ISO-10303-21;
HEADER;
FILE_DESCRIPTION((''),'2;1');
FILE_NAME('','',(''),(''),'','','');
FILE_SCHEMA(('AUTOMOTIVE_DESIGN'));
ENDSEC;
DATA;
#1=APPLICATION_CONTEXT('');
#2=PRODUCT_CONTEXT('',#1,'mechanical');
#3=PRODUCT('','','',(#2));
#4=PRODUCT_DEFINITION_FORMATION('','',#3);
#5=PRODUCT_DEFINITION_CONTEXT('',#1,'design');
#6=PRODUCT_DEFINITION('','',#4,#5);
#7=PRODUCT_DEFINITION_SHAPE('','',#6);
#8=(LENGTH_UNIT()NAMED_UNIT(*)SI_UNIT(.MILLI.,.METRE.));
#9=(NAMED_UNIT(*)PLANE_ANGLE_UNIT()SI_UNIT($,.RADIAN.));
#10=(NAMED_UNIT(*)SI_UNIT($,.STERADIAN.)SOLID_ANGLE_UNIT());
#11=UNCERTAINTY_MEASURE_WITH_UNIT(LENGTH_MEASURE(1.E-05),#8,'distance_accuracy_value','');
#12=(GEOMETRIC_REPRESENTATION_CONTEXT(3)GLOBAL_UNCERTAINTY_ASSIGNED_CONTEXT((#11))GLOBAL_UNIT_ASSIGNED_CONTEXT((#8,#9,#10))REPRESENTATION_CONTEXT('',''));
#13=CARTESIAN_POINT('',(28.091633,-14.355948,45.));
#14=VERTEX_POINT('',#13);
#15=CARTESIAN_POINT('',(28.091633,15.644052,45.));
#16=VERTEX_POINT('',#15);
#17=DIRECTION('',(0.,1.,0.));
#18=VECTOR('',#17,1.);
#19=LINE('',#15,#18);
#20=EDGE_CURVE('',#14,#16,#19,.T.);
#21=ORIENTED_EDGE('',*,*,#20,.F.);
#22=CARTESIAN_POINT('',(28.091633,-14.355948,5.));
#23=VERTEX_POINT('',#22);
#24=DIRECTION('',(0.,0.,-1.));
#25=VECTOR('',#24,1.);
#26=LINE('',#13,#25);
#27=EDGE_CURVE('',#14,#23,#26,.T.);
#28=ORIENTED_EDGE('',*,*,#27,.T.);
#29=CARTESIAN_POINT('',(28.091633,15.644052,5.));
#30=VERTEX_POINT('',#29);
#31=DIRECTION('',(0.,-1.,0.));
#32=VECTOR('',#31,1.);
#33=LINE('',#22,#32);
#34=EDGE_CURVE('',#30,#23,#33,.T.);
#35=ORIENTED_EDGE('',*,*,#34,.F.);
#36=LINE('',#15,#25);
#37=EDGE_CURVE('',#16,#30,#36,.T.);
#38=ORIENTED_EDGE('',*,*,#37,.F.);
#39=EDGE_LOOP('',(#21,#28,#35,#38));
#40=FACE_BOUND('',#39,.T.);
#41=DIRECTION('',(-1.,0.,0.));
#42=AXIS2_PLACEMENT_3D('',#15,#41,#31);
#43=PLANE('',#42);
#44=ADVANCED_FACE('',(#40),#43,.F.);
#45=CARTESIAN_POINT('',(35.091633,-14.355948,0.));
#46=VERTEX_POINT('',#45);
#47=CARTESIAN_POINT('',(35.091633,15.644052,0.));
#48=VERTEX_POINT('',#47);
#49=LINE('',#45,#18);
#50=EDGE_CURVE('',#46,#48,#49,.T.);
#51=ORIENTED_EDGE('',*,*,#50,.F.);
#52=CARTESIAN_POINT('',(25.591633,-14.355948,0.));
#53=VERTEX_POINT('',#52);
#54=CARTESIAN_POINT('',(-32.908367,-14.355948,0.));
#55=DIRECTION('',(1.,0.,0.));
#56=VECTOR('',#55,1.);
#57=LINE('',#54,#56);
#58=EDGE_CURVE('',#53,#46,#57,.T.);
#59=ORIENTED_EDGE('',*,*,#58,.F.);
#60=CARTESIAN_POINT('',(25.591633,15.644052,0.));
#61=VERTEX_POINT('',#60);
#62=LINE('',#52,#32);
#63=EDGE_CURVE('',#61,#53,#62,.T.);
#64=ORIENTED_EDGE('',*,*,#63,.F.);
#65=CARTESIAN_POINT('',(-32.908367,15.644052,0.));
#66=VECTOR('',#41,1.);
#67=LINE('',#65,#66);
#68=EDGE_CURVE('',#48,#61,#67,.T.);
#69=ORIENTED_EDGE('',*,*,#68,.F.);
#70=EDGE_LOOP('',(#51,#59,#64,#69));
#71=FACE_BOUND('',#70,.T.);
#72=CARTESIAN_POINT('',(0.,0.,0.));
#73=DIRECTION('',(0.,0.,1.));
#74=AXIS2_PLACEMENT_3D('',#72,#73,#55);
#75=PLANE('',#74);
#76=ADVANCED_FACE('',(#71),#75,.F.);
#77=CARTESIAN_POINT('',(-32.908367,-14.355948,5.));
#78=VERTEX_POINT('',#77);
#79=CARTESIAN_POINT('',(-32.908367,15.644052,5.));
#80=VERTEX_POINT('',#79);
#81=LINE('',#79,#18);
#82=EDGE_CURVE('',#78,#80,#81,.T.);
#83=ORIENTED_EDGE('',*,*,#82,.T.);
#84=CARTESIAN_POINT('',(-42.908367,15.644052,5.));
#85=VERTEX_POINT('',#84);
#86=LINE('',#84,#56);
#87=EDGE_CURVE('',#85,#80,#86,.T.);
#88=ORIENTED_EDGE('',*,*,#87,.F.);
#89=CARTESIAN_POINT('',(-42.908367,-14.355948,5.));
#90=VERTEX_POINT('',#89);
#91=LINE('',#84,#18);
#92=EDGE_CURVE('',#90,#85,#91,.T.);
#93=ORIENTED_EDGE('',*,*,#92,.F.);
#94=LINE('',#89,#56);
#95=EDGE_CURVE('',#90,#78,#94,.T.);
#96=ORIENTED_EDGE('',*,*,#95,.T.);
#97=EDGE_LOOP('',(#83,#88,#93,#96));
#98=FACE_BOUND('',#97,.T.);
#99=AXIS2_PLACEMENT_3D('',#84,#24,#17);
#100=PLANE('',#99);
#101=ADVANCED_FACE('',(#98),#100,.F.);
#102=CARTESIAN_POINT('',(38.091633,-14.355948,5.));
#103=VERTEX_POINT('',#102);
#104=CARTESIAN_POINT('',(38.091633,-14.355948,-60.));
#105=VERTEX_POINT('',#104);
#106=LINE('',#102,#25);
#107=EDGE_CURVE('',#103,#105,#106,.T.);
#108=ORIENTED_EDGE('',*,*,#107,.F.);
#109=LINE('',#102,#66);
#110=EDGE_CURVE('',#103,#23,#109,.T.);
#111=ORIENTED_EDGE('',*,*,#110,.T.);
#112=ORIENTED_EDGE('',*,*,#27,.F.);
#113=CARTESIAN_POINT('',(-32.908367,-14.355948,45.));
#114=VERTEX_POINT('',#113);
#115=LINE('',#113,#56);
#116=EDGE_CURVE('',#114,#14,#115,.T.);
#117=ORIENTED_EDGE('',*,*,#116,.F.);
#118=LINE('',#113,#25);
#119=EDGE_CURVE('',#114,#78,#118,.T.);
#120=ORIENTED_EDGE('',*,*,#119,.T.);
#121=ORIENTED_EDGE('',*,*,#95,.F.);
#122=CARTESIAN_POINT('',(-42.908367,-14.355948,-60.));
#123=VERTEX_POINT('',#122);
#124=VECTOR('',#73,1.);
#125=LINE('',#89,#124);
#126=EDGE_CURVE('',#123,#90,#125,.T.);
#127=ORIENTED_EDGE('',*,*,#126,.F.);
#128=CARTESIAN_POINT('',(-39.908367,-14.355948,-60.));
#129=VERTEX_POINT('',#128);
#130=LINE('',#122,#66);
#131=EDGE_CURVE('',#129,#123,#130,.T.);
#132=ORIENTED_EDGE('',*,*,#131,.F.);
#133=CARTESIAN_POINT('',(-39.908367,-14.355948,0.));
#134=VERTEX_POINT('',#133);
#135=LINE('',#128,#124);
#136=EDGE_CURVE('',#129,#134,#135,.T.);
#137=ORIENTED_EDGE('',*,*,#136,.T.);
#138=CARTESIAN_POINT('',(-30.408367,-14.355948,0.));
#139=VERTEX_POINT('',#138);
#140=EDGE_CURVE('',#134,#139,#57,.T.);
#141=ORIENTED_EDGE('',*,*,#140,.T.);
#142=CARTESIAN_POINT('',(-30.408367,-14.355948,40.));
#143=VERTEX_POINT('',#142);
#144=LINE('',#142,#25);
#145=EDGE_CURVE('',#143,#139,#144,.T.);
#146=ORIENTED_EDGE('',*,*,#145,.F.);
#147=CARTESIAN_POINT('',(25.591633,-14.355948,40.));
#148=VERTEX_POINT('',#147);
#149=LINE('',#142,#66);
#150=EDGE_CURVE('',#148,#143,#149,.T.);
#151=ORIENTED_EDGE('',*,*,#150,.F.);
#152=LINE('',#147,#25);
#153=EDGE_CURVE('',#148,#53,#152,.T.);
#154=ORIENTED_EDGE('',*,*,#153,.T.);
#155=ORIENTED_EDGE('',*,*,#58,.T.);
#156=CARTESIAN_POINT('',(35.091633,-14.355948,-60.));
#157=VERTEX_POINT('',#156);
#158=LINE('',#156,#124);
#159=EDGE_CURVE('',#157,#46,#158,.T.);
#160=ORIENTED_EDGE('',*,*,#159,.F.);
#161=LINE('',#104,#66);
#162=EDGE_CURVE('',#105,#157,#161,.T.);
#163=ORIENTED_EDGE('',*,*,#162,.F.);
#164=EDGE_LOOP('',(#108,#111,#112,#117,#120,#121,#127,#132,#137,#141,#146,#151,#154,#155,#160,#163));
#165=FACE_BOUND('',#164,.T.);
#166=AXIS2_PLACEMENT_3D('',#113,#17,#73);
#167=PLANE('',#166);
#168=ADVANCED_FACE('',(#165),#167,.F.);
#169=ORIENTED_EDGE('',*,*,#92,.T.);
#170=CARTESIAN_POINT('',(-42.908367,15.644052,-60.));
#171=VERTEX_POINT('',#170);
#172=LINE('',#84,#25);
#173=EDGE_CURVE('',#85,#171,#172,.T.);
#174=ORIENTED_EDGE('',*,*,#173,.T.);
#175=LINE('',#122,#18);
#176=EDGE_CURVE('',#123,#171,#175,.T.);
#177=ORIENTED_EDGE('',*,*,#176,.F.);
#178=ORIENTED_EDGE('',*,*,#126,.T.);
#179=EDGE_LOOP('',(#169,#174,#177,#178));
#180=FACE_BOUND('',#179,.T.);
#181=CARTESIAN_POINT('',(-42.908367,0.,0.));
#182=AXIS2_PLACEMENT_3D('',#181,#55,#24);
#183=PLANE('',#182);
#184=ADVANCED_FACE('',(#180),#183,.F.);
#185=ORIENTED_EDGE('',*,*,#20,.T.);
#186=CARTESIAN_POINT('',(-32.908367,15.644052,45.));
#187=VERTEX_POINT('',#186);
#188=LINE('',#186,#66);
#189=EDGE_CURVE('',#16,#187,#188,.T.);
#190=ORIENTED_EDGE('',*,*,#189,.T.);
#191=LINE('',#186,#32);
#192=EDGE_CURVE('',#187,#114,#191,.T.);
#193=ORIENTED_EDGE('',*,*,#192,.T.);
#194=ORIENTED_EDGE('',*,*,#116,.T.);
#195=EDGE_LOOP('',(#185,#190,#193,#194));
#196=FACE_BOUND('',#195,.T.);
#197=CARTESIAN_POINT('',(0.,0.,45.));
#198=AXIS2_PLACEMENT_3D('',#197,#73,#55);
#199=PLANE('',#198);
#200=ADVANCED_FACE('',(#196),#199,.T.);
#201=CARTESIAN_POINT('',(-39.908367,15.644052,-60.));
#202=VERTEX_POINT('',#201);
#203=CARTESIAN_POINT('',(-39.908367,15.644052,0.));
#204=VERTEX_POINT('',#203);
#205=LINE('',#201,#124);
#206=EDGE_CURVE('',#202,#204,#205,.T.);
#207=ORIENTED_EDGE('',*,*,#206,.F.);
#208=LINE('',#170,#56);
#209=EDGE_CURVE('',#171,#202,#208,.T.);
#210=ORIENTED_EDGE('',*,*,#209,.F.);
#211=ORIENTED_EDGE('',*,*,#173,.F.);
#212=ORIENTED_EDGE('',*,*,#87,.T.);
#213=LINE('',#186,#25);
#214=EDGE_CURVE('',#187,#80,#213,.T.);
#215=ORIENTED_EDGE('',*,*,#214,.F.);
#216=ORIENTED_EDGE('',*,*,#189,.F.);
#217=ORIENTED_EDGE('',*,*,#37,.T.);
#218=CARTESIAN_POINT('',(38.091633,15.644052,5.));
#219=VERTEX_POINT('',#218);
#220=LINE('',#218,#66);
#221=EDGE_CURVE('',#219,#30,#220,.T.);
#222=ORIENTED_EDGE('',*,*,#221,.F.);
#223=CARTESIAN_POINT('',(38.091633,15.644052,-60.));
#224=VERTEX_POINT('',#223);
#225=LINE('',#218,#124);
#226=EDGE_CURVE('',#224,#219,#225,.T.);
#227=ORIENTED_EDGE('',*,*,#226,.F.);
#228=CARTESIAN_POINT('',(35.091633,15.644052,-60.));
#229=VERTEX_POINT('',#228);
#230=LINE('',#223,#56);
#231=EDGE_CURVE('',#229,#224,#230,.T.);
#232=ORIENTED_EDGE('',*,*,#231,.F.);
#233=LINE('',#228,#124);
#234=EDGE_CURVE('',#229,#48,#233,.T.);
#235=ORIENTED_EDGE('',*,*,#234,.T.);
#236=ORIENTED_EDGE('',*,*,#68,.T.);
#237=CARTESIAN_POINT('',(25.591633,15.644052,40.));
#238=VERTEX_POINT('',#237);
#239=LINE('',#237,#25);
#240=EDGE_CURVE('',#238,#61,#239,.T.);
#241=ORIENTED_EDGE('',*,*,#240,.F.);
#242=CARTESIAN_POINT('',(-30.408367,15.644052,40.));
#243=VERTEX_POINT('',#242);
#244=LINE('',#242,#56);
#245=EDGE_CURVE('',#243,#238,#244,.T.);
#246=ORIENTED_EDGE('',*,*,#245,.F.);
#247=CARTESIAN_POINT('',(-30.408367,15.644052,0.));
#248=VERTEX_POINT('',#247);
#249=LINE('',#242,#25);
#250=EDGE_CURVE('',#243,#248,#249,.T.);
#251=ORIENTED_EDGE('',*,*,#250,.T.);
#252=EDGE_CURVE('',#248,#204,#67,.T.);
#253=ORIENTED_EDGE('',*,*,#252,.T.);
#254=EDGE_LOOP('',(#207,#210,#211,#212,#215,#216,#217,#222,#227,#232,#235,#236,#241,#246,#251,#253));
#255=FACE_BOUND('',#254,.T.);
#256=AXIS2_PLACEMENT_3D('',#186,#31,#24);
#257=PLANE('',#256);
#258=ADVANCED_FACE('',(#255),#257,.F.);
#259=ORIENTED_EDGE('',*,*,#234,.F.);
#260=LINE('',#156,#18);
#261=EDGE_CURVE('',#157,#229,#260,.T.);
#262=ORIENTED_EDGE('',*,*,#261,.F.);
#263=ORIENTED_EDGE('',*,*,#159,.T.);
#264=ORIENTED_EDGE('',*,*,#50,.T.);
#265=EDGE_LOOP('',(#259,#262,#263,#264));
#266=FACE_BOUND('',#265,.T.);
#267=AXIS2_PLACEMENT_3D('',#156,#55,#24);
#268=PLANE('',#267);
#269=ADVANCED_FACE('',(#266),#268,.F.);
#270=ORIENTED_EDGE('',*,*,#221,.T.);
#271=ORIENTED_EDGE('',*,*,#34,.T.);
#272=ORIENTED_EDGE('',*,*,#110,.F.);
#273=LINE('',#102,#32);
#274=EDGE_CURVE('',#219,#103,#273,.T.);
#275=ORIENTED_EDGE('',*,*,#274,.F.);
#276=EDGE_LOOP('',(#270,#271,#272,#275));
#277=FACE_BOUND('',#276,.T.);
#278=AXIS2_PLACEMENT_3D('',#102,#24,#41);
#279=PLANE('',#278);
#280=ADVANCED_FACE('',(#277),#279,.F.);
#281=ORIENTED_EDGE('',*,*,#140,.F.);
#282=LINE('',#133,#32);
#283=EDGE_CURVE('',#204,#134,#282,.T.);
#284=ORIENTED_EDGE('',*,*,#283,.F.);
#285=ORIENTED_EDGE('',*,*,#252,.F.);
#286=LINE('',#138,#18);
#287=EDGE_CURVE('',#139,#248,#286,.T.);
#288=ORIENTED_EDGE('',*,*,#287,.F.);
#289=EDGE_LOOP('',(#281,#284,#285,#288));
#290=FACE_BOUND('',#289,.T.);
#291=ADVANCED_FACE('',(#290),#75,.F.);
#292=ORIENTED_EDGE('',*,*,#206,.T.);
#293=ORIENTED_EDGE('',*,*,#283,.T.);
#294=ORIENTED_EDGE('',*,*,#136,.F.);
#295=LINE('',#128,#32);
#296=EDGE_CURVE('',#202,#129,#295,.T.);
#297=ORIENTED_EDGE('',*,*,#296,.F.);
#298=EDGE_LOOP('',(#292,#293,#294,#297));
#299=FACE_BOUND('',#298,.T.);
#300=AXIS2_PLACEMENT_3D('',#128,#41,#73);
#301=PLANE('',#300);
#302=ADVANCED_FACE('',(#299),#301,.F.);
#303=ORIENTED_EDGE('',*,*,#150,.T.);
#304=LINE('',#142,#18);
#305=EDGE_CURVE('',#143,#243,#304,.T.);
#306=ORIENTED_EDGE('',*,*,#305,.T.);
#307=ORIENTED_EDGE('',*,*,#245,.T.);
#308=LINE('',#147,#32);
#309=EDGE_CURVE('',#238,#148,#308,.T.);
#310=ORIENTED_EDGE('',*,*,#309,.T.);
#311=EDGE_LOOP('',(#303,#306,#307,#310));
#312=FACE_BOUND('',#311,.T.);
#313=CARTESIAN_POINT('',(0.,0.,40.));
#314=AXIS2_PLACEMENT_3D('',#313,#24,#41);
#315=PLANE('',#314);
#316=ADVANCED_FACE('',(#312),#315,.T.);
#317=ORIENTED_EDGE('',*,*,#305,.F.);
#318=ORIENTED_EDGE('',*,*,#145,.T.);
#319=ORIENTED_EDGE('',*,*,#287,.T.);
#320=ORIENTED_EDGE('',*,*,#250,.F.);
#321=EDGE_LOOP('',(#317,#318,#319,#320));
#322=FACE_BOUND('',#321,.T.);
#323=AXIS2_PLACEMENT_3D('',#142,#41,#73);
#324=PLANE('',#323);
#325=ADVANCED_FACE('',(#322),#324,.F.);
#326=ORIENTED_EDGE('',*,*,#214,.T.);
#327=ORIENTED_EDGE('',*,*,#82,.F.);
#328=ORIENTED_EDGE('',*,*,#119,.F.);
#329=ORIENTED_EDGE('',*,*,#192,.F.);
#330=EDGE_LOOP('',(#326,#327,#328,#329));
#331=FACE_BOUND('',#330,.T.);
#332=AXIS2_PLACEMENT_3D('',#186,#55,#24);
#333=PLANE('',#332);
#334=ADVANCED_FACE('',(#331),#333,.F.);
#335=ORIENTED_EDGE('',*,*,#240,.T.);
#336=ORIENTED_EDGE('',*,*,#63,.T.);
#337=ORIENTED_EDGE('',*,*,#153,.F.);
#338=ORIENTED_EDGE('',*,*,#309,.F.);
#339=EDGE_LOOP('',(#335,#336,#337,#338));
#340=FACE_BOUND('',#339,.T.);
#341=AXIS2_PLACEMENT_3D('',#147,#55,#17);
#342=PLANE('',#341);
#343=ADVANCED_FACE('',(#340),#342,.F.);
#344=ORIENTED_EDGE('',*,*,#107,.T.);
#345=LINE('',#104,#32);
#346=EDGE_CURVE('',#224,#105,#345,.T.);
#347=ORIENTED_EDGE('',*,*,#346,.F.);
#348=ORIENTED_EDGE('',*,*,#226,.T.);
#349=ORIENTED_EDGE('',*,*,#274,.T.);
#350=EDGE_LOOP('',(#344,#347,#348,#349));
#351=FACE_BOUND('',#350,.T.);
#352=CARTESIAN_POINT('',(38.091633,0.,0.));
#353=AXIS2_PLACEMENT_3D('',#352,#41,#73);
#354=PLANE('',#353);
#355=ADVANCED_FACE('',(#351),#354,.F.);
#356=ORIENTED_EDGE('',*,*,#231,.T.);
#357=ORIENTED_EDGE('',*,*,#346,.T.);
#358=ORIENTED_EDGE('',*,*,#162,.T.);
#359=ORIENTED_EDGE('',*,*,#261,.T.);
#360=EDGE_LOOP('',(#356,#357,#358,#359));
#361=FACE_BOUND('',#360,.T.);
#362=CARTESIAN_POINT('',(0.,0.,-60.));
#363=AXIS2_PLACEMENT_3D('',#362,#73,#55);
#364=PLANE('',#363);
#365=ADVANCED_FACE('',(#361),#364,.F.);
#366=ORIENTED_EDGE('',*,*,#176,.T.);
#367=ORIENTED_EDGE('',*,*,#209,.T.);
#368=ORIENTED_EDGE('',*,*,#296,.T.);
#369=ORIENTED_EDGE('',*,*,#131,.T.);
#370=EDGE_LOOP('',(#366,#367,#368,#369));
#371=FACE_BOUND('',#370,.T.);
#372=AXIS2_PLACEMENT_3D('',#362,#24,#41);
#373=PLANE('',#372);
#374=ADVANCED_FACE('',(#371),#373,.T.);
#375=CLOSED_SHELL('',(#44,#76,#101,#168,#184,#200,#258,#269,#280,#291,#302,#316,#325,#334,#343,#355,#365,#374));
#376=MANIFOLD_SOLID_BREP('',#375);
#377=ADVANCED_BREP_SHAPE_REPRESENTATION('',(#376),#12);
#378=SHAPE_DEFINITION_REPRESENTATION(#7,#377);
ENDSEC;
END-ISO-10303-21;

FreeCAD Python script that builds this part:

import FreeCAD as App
import Part
import Sketcher

V = App.Vector
Q = App.Units.Quantity


def add_polygon(sketch, points):
    """Adds a closed chain of lines whose ends are joined by coincident constraints."""
    first, n = sketch.GeometryCount, len(points)
    for a, b in zip(points, points[1:] + points[:1]):
        sketch.addGeometry(Part.LineSegment(App.Vector(*a, 0), App.Vector(*b, 0)), False)
    for i in range(n):
        sketch.addConstraint(Sketcher.Constraint("Coincident", first + i, 2, first + (i + 1) % n, 1))

doc = App.newDocument("Part")
body = doc.addObject("PartDesign::Body", "Body")

sketch1 = body.newObject("Sketcher::SketchObject", "Sketch")
sketch1.AttachmentSupport = (doc.getObject("XY_Plane"), [""])
sketch1.MapMode = "FlatFace"
add_polygon(sketch1, [(-32.908367, 15.644052), (-32.908367, -14.355948), (28.091633, -14.355948), (28.091633, 15.644052)])
sketch1.addConstraint(Sketcher.Constraint("Vertical", 0))
sketch1.addConstraint(Sketcher.Constraint("Horizontal", 1))
sketch1.addConstraint(Sketcher.Constraint("Vertical", 2))
sketch1.addConstraint(Sketcher.Constraint("Horizontal", 3))
sketch1.addConstraint(Sketcher.Constraint("DistanceX", 1, 1, 1, 2, Q("61 mm")))
sketch1.addConstraint(Sketcher.Constraint("DistanceY", 0, 2, 0, 1, Q("30 mm")))
sketch1.addConstraint(Sketcher.Constraint("DistanceX", 0, 2, -1, 1, Q("32.908367 mm")))
sketch1.addConstraint(Sketcher.Constraint("DistanceY", 0, 2, -1, 1, Q("14.355948 mm")))
pad1 = body.newObject("PartDesign::Pad", "Pad")
pad1.Profile = sketch1
pad1.Length = 45

sketch2 = body.newObject("Sketcher::SketchObject", "Sketch001")
sketch2.AttachmentSupport = (doc.getObject("XY_Plane"), [""])
sketch2.MapMode = "FlatFace"
add_polygon(sketch2, [(25.591633, 15.644052), (25.591633, -14.355948), (-30.408367, -14.355948), (-30.408367, 15.644052)])
sketch2.addConstraint(Sketcher.Constraint("Vertical", 0))
sketch2.addConstraint(Sketcher.Constraint("Horizontal", 1))
sketch2.addConstraint(Sketcher.Constraint("Vertical", 2))
sketch2.addConstraint(Sketcher.Constraint("Horizontal", 3))
sketch2.addConstraint(Sketcher.Constraint("DistanceX", 1, 2, 1, 1, Q("56 mm")))
sketch2.addConstraint(Sketcher.Constraint("DistanceY", 0, 2, 0, 1, Q("30 mm")))
sketch2.addConstraint(Sketcher.Constraint("DistanceX", -1, 1, 0, 2, Q("25.591633 mm")))
sketch2.addConstraint(Sketcher.Constraint("DistanceY", 0, 2, -1, 1, Q("14.355948 mm")))
pocket1 = body.newObject("PartDesign::Pocket", "Pocket")
pocket1.Profile = sketch2
pocket1.Length = 40
pocket1.Reversed = True

sketch3 = body.newObject("Sketcher::SketchObject", "Sketch002")
sketch3.AttachmentSupport = (doc.getObject("YZ_Plane"), [""])
sketch3.MapMode = "FlatFace"
sketch3.AttachmentOffset = App.Placement(V(0, 0, 28.091633), App.Rotation())
add_polygon(sketch3, [(15.644052, 5), (-14.355948, 5), (-14.355948, 0), (15.644052, 0)])
sketch3.addConstraint(Sketcher.Constraint("Horizontal", 0))
sketch3.addConstraint(Sketcher.Constraint("Vertical", 1))
sketch3.addConstraint(Sketcher.Constraint("Horizontal", 2))
sketch3.addConstraint(Sketcher.Constraint("Vertical", 3))
sketch3.addConstraint(Sketcher.Constraint("PointOnObject", 1, 2, -1))
sketch3.addConstraint(Sketcher.Constraint("DistanceX", 0, 2, 0, 1, Q("30 mm")))
sketch3.addConstraint(Sketcher.Constraint("DistanceY", 1, 2, 1, 1, Q("5 mm")))
sketch3.addConstraint(Sketcher.Constraint("DistanceX", 0, 2, -1, 1, Q("14.355948 mm")))
pad2 = body.newObject("PartDesign::Pad", "Pad001")
pad2.Profile = sketch3
pad2.Length = 10

sketch4 = body.newObject("Sketcher::SketchObject", "Sketch003")
sketch4.AttachmentSupport = (doc.getObject("YZ_Plane"), [""])
sketch4.MapMode = "FlatFace"
sketch4.AttachmentOffset = App.Placement(V(0, 0, -32.908367), App.Rotation())
add_polygon(sketch4, [(15.644052, 0), (-14.355948, 0), (-14.355948, 5), (15.644052, 5)])
sketch4.addConstraint(Sketcher.Constraint("Horizontal", 0))
sketch4.addConstraint(Sketcher.Constraint("Vertical", 1))
sketch4.addConstraint(Sketcher.Constraint("Horizontal", 2))
sketch4.addConstraint(Sketcher.Constraint("Vertical", 3))
sketch4.addConstraint(Sketcher.Constraint("PointOnObject", 0, 2, -1))
sketch4.addConstraint(Sketcher.Constraint("DistanceX", 0, 2, 0, 1, Q("30 mm")))
sketch4.addConstraint(Sketcher.Constraint("DistanceY", 1, 1, 1, 2, Q("5 mm")))
sketch4.addConstraint(Sketcher.Constraint("DistanceX", 0, 2, -1, 1, Q("14.355948 mm")))
pad3 = body.newObject("PartDesign::Pad", "Pad002")
pad3.Profile = sketch4
pad3.Length = 10
pad3.Reversed = True

sketch5 = body.newObject("Sketcher::SketchObject", "Sketch004")
sketch5.AttachmentSupport = (doc.getObject("XY_Plane"), [""])
sketch5.MapMode = "FlatFace"
add_polygon(sketch5, [(38.091633, 15.644052), (38.091633, -14.355948), (35.091633, -14.355948), (35.091633, 15.644052)])
sketch5.addConstraint(Sketcher.Constraint("Vertical", 0))
sketch5.addConstraint(Sketcher.Constraint("Horizontal", 1))
sketch5.addConstraint(Sketcher.Constraint("Vertical", 2))
sketch5.addConstraint(Sketcher.Constraint("Horizontal", 3))
sketch5.addConstraint(Sketcher.Constraint("DistanceX", 1, 2, 1, 1, Q("3 mm")))
sketch5.addConstraint(Sketcher.Constraint("DistanceY", 0, 2, 0, 1, Q("30 mm")))
sketch5.addConstraint(Sketcher.Constraint("DistanceX", -1, 1, 0, 2, Q("38.091633 mm")))
sketch5.addConstraint(Sketcher.Constraint("DistanceY", 0, 2, -1, 1, Q("14.355948 mm")))
pad4 = body.newObject("PartDesign::Pad", "Pad003")
pad4.Profile = sketch5
pad4.Length = 60
pad4.Reversed = True

sketch6 = body.newObject("Sketcher::SketchObject", "Sketch005")
sketch6.AttachmentSupport = (doc.getObject("XY_Plane"), [""])
sketch6.MapMode = "FlatFace"
add_polygon(sketch6, [(-39.908367, 15.644052), (-39.908367, -14.355948), (-42.908367, -14.355948), (-42.908367, 15.644052)])
sketch6.addConstraint(Sketcher.Constraint("Vertical", 0))
sketch6.addConstraint(Sketcher.Constraint("Horizontal", 1))
sketch6.addConstraint(Sketcher.Constraint("Vertical", 2))
sketch6.addConstraint(Sketcher.Constraint("Horizontal", 3))
sketch6.addConstraint(Sketcher.Constraint("DistanceX", 1, 2, 1, 1, Q("3 mm")))
sketch6.addConstraint(Sketcher.Constraint("DistanceY", 0, 2, 0, 1, Q("30 mm")))
sketch6.addConstraint(Sketcher.Constraint("DistanceX", 0, 2, -1, 1, Q("39.908367 mm")))
sketch6.addConstraint(Sketcher.Constraint("DistanceY", 0, 2, -1, 1, Q("14.355948 mm")))
pad5 = body.newObject("PartDesign::Pad", "Pad004")
pad5.Profile = sketch6
pad5.Length = 60
pad5.Reversed = True

doc.recompute()
